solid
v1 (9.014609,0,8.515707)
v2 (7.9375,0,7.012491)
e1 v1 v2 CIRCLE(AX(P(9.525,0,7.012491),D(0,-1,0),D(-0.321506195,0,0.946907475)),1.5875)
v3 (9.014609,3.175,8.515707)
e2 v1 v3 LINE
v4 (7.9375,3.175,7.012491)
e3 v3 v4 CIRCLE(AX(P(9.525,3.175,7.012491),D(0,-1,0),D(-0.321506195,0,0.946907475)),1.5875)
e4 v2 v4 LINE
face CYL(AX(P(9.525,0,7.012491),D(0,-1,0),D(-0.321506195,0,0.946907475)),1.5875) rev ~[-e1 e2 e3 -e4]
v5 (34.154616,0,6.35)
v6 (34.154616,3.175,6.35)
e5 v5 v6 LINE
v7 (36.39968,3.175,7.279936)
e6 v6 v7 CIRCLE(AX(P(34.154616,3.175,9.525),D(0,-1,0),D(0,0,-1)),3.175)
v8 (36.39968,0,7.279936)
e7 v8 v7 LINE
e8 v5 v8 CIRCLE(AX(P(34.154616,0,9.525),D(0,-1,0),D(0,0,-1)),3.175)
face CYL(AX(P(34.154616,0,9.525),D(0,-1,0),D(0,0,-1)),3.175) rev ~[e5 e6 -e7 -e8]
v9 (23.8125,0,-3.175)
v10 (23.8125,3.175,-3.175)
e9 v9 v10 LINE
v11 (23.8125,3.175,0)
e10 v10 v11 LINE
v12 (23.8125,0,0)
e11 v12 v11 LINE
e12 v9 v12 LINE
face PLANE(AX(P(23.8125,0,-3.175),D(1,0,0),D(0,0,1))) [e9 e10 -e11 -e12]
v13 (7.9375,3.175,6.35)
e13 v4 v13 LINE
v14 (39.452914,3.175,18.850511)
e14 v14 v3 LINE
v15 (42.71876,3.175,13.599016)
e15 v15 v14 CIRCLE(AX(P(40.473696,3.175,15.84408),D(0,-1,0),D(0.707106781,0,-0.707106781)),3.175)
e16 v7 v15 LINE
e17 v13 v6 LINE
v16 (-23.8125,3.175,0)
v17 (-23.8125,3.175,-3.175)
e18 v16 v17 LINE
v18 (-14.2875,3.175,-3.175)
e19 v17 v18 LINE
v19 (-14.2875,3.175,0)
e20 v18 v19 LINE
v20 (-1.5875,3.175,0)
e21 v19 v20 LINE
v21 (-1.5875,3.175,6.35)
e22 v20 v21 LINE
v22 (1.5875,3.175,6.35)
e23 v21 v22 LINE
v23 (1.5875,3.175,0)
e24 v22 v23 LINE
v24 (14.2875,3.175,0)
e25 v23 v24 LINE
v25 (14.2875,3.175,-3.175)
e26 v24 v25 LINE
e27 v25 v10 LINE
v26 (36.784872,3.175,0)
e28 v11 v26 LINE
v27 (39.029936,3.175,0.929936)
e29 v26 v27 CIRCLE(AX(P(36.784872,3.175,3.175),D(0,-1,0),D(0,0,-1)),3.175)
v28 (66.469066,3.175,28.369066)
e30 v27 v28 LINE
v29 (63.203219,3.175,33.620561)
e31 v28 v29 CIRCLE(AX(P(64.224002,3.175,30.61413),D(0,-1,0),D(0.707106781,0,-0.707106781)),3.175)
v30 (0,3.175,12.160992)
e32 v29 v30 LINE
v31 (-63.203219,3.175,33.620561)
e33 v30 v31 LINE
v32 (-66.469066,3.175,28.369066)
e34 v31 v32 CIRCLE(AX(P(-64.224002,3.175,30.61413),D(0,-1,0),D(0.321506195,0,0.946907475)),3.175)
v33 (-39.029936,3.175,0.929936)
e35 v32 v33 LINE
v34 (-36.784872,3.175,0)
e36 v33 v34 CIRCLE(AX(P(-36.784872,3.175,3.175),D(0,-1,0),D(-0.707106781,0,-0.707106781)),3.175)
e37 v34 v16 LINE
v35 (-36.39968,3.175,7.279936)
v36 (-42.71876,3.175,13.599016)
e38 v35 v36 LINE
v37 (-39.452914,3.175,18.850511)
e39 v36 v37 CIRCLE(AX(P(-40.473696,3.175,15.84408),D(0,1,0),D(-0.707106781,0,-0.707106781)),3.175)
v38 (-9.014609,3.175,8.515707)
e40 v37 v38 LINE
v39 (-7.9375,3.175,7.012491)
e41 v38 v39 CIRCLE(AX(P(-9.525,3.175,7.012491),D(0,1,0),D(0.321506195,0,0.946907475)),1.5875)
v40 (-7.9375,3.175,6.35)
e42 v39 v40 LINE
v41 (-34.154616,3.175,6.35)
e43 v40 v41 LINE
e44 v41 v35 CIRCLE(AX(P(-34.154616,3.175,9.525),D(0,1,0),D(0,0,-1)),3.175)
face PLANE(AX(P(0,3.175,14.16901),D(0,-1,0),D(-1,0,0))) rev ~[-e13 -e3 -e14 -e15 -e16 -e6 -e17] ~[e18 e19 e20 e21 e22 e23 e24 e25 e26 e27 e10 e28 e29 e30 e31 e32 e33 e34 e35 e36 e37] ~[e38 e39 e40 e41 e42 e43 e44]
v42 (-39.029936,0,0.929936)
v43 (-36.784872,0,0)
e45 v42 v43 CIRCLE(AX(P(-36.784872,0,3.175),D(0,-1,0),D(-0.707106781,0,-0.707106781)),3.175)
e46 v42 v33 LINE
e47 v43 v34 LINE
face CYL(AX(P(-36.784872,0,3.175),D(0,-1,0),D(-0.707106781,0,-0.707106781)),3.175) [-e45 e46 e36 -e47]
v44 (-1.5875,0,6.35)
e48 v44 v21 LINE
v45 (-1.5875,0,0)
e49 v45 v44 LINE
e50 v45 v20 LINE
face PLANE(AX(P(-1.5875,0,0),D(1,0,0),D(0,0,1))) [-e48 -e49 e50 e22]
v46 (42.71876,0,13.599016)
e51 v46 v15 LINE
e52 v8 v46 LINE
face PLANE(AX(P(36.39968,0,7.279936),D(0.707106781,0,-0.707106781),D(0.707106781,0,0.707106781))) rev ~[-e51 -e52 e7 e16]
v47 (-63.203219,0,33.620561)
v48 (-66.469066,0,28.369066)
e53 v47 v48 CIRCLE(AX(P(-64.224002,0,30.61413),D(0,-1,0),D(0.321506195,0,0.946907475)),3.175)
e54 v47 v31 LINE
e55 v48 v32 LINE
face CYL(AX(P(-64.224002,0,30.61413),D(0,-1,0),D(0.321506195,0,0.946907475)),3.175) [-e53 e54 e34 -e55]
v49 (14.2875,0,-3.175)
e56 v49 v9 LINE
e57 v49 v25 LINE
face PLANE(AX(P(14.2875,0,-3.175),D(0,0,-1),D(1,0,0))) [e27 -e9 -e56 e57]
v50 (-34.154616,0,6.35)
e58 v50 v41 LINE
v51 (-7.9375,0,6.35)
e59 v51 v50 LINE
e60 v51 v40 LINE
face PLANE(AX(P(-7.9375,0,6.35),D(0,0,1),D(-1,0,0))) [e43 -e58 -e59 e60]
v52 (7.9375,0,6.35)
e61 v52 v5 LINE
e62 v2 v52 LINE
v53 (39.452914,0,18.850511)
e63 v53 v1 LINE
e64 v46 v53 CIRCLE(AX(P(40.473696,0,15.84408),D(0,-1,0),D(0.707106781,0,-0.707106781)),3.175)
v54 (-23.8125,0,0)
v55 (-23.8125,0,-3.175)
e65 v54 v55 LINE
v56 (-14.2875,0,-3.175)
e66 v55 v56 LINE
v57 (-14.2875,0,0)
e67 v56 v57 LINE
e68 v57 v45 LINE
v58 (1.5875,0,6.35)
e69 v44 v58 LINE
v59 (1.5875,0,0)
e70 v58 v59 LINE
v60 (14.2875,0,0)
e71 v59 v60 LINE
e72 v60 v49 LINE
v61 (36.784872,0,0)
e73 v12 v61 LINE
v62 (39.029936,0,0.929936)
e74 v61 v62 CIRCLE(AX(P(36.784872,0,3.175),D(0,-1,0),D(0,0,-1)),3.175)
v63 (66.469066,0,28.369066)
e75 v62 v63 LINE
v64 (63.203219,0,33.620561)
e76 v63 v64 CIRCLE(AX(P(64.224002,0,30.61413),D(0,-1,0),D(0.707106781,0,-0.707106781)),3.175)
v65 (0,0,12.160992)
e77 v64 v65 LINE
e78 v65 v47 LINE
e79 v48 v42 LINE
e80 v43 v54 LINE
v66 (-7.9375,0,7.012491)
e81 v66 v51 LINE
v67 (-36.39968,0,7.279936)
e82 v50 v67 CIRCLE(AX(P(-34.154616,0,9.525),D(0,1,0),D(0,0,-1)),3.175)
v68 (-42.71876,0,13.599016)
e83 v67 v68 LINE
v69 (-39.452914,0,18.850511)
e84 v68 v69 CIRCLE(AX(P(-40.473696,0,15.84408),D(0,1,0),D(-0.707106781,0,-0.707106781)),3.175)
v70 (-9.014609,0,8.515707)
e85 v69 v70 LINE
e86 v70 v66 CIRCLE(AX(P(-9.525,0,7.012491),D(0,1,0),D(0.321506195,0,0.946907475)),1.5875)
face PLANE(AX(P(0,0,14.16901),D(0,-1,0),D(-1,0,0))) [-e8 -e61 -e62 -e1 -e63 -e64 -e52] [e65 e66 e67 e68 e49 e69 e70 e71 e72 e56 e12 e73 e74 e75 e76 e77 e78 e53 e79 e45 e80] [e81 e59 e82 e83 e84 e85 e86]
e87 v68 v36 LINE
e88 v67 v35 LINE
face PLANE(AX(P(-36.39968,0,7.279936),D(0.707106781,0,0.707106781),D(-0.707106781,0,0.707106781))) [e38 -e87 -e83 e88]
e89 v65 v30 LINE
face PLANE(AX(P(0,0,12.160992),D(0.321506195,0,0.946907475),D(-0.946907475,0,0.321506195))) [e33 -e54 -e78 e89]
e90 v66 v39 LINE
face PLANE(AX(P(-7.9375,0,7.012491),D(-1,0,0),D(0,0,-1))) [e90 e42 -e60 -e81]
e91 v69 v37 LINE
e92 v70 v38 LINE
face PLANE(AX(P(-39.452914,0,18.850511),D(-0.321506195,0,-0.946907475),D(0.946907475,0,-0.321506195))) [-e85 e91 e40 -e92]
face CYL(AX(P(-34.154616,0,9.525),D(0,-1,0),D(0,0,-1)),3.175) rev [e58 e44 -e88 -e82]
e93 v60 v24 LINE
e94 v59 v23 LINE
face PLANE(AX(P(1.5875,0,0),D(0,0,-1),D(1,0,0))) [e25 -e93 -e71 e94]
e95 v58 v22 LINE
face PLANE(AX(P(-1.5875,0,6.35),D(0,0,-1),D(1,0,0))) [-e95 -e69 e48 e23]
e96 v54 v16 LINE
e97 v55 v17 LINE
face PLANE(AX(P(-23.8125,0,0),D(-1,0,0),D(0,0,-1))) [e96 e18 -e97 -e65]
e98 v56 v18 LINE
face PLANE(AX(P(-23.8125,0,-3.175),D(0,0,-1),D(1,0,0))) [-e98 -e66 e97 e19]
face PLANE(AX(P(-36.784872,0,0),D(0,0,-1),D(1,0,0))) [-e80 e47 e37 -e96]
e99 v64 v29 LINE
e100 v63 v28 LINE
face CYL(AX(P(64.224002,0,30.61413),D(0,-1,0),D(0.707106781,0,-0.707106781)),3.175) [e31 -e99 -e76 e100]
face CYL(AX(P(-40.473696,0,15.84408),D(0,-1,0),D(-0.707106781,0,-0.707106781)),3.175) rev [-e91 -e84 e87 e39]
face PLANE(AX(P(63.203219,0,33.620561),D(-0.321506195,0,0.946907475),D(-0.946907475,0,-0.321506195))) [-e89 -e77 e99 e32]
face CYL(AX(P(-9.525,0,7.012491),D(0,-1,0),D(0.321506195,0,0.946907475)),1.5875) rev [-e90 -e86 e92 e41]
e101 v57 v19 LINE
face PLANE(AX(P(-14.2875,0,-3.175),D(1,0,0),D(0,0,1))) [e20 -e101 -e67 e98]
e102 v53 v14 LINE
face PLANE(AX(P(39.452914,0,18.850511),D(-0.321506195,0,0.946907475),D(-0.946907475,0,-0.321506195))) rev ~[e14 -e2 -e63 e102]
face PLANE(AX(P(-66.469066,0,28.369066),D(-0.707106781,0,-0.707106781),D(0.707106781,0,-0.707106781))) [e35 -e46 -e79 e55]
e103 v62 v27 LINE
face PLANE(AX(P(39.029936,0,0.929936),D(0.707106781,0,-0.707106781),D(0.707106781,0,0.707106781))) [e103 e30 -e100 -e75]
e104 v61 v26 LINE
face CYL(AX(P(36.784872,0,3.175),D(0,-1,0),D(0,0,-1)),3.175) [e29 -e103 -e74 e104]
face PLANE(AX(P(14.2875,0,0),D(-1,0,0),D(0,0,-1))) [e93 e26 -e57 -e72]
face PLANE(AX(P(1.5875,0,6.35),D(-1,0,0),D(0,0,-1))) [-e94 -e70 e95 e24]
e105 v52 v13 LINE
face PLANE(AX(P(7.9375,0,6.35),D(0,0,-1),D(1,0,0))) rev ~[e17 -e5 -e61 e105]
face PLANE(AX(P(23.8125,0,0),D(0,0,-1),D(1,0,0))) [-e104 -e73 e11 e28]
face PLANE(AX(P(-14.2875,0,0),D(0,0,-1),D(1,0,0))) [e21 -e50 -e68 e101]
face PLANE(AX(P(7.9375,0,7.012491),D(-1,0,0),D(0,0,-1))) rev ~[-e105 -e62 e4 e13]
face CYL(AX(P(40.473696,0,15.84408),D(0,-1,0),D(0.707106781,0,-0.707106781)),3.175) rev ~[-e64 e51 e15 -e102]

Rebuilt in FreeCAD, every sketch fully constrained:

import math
import FreeCAD as App
import Part
import Sketcher
from FreeCAD import Vector
Q = App.Units.Quantity

doc = App.newDocument("Part")
body = doc.addObject("PartDesign::Body", "Body")

sketch1 = doc.addObject("Sketcher::SketchObject", "Sketch")
body.addObject(sketch1)
sketch1.AttachmentSupport = (doc.XZ_Plane, [""])
sketch1.MapMode = "FlatFace"
sketch1.addGeometry([
    Part.LineSegment(Vector(-23.8, 0, 0), Vector(-36.8, 0, 0)),
    Part.ArcOfCircle(Part.Circle(Vector(-36.8, 3.2, 0), Vector(0, 0, 1), 3.2), math.radians(-135), math.radians(-90)),
    Part.LineSegment(Vector(-39, 0.9, 0), Vector(-66.5, 28.4, 0)),
    Part.ArcOfCircle(Part.Circle(Vector(-64.2, 30.6, 0), Vector(0, 0, 1), 3.2), math.radians(71), math.radians(225)),
    Part.LineSegment(Vector(-63.2, 33.6, 0), Vector(0, 12.2, 0)),
    Part.LineSegment(Vector(0, 12.2, 0), Vector(63.2, 33.6, 0)),
    Part.ArcOfCircle(Part.Circle(Vector(64.2, 30.6, 0), Vector(0, 0, 1), 3.2), math.radians(-45), math.radians(109)),
    Part.LineSegment(Vector(66.5, 28.4, 0), Vector(39, 0.9, 0)),
    Part.ArcOfCircle(Part.Circle(Vector(36.8, 3.2, 0), Vector(0, 0, 1), 3.2), math.radians(-90), math.radians(-45)),
    Part.LineSegment(Vector(36.8, 0, 0), Vector(23.8, 0, 0)),
    Part.LineSegment(Vector(23.8, 0, 0), Vector(23.8, -3.2, 0)),
    Part.LineSegment(Vector(23.8, -3.2, 0), Vector(14.3, -3.2, 0)),
    Part.LineSegment(Vector(14.3, -3.2, 0), Vector(14.3, 0, 0)),
    Part.LineSegment(Vector(14.3, 0, 0), Vector(1.6, 0, 0)),
    Part.LineSegment(Vector(1.6, 0, 0), Vector(1.6, 6.3, 0)),
    Part.LineSegment(Vector(1.6, 6.3, 0), Vector(-1.6, 6.3, 0)),
    Part.LineSegment(Vector(-1.6, 6.3, 0), Vector(-1.6, 0, 0)),
    Part.LineSegment(Vector(-1.6, 0, 0), Vector(-14.3, 0, 0)),
    Part.LineSegment(Vector(-14.3, 0, 0), Vector(-14.3, -3.2, 0)),
    Part.LineSegment(Vector(-14.3, -3.2, 0), Vector(-23.8, -3.2, 0)),
    Part.LineSegment(Vector(-23.8, -3.2, 0), Vector(-23.8, 0, 0)),
    Part.LineSegment(Vector(39.5, 18.9, 0), Vector(9, 8.5, 0)),
    Part.ArcOfCircle(Part.Circle(Vector(9.5, 7, 0), Vector(0, 0, 1), 1.6), math.radians(109), math.radians(180)),
    Part.LineSegment(Vector(7.9, 7, 0), Vector(7.9, 6.3, 0)),
    Part.LineSegment(Vector(7.9, 6.3, 0), Vector(34.2, 6.3, 0)),
    Part.ArcOfCircle(Part.Circle(Vector(34.2, 9.5, 0), Vector(0, 0, 1), 3.2), math.radians(-90), math.radians(-45)),
    Part.LineSegment(Vector(36.4, 7.3, 0), Vector(42.7, 13.6, 0)),
    Part.ArcOfCircle(Part.Circle(Vector(40.5, 15.8, 0), Vector(0, 0, 1), 3.2), math.radians(-45), math.radians(109)),
    Part.ArcOfCircle(Part.Circle(Vector(-40.5, 15.8, 0), Vector(0, 0, 1), 3.2), math.radians(71), math.radians(225)),
    Part.LineSegment(Vector(-42.7, 13.6, 0), Vector(-36.4, 7.3, 0)),
    Part.ArcOfCircle(Part.Circle(Vector(-34.2, 9.5, 0), Vector(0, 0, 1), 3.2), math.radians(-135), math.radians(-90)),
    Part.LineSegment(Vector(-34.2, 6.3, 0), Vector(-7.9, 6.3, 0)),
    Part.LineSegment(Vector(-7.9, 6.3, 0), Vector(-7.9, 7, 0)),
    Part.ArcOfCircle(Part.Circle(Vector(-9.5, 7, 0), Vector(0, 0, 1), 1.6), math.radians(0), math.radians(71)),
    Part.LineSegment(Vector(-9, 8.5, 0), Vector(-39.5, 18.9, 0)),
], False)
sketch1.addConstraint([
    Sketcher.Constraint("Tangent", 0, 2, 1, 2),
    Sketcher.Constraint("Tangent", 1, 1, 2, 1),
    Sketcher.Constraint("Tangent", 2, 2, 3, 2),
    Sketcher.Constraint("Tangent", 3, 1, 4, 1),
    Sketcher.Constraint("Coincident", 4, 2, 5, 1),
    Sketcher.Constraint("Tangent", 5, 2, 6, 2),
    Sketcher.Constraint("Tangent", 6, 1, 7, 1),
    Sketcher.Constraint("Tangent", 7, 2, 8, 2),
    Sketcher.Constraint("Tangent", 8, 1, 9, 1),
    Sketcher.Constraint("Coincident", 9, 2, 10, 1),
    Sketcher.Constraint("Coincident", 10, 2, 11, 1),
    Sketcher.Constraint("Coincident", 11, 2, 12, 1),
    Sketcher.Constraint("Coincident", 12, 2, 13, 1),
    Sketcher.Constraint("Coincident", 13, 2, 14, 1),
    Sketcher.Constraint("Coincident", 14, 2, 15, 1),
    Sketcher.Constraint("Coincident", 15, 2, 16, 1),
    Sketcher.Constraint("Coincident", 16, 2, 17, 1),
    Sketcher.Constraint("Coincident", 17, 2, 18, 1),
    Sketcher.Constraint("Coincident", 18, 2, 19, 1),
    Sketcher.Constraint("Coincident", 19, 2, 20, 1),
    Sketcher.Constraint("Coincident", 20, 2, 0, 1),
    Sketcher.Constraint("Tangent", 21, 2, 22, 1),
    Sketcher.Constraint("Tangent", 22, 2, 23, 1),
    Sketcher.Constraint("Coincident", 23, 2, 24, 1),
    Sketcher.Constraint("Tangent", 24, 2, 25, 1),
    Sketcher.Constraint("Tangent", 25, 2, 26, 1),
    Sketcher.Constraint("Tangent", 26, 2, 27, 1),
    Sketcher.Constraint("Tangent", 27, 2, 21, 1),
    Sketcher.Constraint("Tangent", 28, 2, 29, 1),
    Sketcher.Constraint("Tangent", 29, 2, 30, 1),
    Sketcher.Constraint("Tangent", 30, 2, 31, 1),
    Sketcher.Constraint("Coincident", 31, 2, 32, 1),
    Sketcher.Constraint("Tangent", 32, 2, 33, 1),
    Sketcher.Constraint("Tangent", 33, 2, 34, 1),
    Sketcher.Constraint("Tangent", 34, 2, 28, 1),
    Sketcher.Constraint("Horizontal", 0),
    Sketcher.Constraint("Horizontal", 9),
    Sketcher.Constraint("Vertical", 10),
    Sketcher.Constraint("Horizontal", 11),
    Sketcher.Constraint("Vertical", 12),
    Sketcher.Constraint("Horizontal", 13),
    Sketcher.Constraint("Vertical", 14),
    Sketcher.Constraint("Horizontal", 15),
    Sketcher.Constraint("Vertical", 16),
    Sketcher.Constraint("Horizontal", 17),
    Sketcher.Constraint("Vertical", 18),
    Sketcher.Constraint("Horizontal", 19),
    Sketcher.Constraint("Vertical", 20),
    Sketcher.Constraint("Vertical", 23),
    Sketcher.Constraint("Horizontal", 24),
    Sketcher.Constraint("Horizontal", 31),
    Sketcher.Constraint("Vertical", 32),
    Sketcher.Constraint("Equal", 1, 3),
    Sketcher.Constraint("Equal", 3, 6),
    Sketcher.Constraint("Equal", 6, 8),
    Sketcher.Constraint("Equal", 8, 25),
    Sketcher.Constraint("Equal", 25, 27),
    Sketcher.Constraint("Equal", 27, 28),
    Sketcher.Constraint("Equal", 28, 30),
    Sketcher.Constraint("Equal", 22, 33),
    Sketcher.Constraint("Symmetric", 0, 2, 8, 1, -1, 1),
    Sketcher.Constraint("Symmetric", 13, 2, 16, 2, -1, 1),
    Sketcher.Constraint("Symmetric", 3, 3, 6, 3, -2),
    Sketcher.Constraint("Symmetric", 27, 3, 28, 3, -2),
    Sketcher.Constraint("Symmetric", 25, 3, 30, 3, -2),
    Sketcher.Constraint("Symmetric", 22, 3, 33, 3, -2),
    Sketcher.Constraint("Symmetric", 12, 2, 17, 2, -2),
    Sketcher.Constraint("Symmetric", 10, 2, 19, 2, -2),
    Sketcher.Constraint("PointOnObject", 0, 2, -1),
    Sketcher.Constraint("PointOnObject", 4, 2, -2),
    Sketcher.Constraint("Perpendicular", 2, 7),
    Sketcher.Constraint("Parallel", 5, 21),
    Sketcher.Constraint("Parallel", 7, 26),
    Sketcher.Constraint("Horizontal", 15, 2, 23, 2),
    Sketcher.Constraint("Equal", 15, 10),
    Sketcher.Constraint("DistanceX", 13, 2, 13, 1, Q("0.5 in")),
    Sketcher.Constraint("Radius", 1, Q("0.125 in")),
    Sketcher.Constraint("Radius", 22, Q("0.0625 in")),
    Sketcher.Constraint("DistanceY", 14, 1, 14, 2, Q("0.25 in")),
    Sketcher.Constraint("DistanceY", 10, 2, 25, 3, Q("0.5 in")),
    Sketcher.Constraint("DistanceX", 11, 2, 11, 1, Q("0.375 in")),
    Sketcher.Constraint("DistanceX", 33, 3, 22, 3, Q("0.75 in")),
    Sketcher.Constraint("DistanceX", 0, 2, 0, 1, Q("12.972372 mm")),
    Sketcher.Constraint("DistanceY", 23, 2, 23, 1, Q("0.662491 mm")),
    Sketcher.Constraint("DistanceX", 3, 3, -1, 1, Q("64.224002 mm")),
    Sketcher.Constraint("DistanceY", 22, 3, 4, 2, Q("5.1485 mm")),
    Sketcher.Constraint("Distance", 21, Q("32.144962 mm")),
])
pad1 = doc.addObject("PartDesign::Pad", "Pad")
body.addObject(pad1)
pad1.Profile = sketch1
pad1.Length = Q("0.125 in")
pad1.Reversed = True

doc.recompute()
